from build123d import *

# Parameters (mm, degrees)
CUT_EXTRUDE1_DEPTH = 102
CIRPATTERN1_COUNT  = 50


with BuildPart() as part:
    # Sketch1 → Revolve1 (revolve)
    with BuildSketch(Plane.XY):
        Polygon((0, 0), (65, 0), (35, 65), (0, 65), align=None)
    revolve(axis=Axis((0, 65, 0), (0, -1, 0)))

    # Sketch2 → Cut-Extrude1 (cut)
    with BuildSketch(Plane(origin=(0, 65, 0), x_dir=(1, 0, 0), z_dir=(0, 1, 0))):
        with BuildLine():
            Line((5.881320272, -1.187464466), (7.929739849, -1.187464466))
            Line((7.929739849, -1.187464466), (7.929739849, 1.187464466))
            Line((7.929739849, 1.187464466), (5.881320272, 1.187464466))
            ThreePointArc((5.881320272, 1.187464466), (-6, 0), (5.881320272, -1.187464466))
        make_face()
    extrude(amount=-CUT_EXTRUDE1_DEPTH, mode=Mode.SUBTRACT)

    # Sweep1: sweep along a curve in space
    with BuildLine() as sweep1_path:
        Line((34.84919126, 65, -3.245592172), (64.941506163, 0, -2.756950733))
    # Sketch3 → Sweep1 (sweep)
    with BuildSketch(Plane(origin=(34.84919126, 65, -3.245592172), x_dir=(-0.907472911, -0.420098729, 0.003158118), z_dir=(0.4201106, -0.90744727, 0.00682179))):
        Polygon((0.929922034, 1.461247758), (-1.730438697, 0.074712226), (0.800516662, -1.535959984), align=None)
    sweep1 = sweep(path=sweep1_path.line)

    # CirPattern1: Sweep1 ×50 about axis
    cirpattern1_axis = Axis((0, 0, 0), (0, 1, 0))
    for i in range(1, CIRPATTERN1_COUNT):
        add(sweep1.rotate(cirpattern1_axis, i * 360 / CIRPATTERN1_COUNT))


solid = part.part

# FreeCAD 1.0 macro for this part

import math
import FreeCAD as App
import Part
import Sketcher
from FreeCAD import Vector
Q = App.Units.Quantity

doc = App.newDocument("Part")
body = doc.addObject("PartDesign::Body", "Body")

# Sketch on XY plane
sketch1 = body.newObject("Sketcher::SketchObject", "Sketch")
sketch1.AttachmentSupport = (doc.getObject("XY_Plane"), [""])
sketch1.MapMode = "FlatFace"
sketch1.addGeometry(Part.LineSegment(Vector(0, 0, 0), Vector(65, 0, 0)), False)
sketch1.addGeometry(Part.LineSegment(Vector(65, 0, 0), Vector(35, 65, 0)), False)
sketch1.addGeometry(Part.LineSegment(Vector(35, 65, 0), Vector(0, 65, 0)), False)
sketch1.addGeometry(Part.LineSegment(Vector(0, 65, 0), Vector(0, 0, 0)), False)
sketch1.addConstraint(Sketcher.Constraint("Coincident", 0, 2, 1, 1))
sketch1.addConstraint(Sketcher.Constraint("Coincident", 1, 2, 2, 1))
sketch1.addConstraint(Sketcher.Constraint("Coincident", 2, 2, 3, 1))
sketch1.addConstraint(Sketcher.Constraint("Coincident", 3, 2, 0, 1))
sketch1.addConstraint(Sketcher.Constraint("Horizontal", 0))
sketch1.addConstraint(Sketcher.Constraint("Horizontal", 2))
sketch1.addConstraint(Sketcher.Constraint("Vertical", 3))
sketch1.addConstraint(Sketcher.Constraint("Coincident", 3, 2, -1, 1))
sketch1.addConstraint(Sketcher.Constraint("Equal", 0, 3))
sketch1.addConstraint(Sketcher.Constraint("DistanceX", 0, 1, 0, 2, Q("65 mm")))
sketch1.addConstraint(Sketcher.Constraint("DistanceX", 2, 2, 2, 1, Q("35 mm")))
revolution = body.newObject("PartDesign::Revolution", "Revolution")
revolution.Profile = sketch1
revolution.ReferenceAxis = (sketch1, ["V_Axis"])
revolution.Angle = 360

# Sketch on XZ plane
sketch2 = body.newObject("Sketcher::SketchObject", "Sketch001")
sketch2.AttachmentSupport = (doc.getObject("XZ_Plane"), [""])
sketch2.MapMode = "FlatFace"
sketch2.AttachmentOffset = App.Placement(Vector(0, 0, -65), App.Rotation())
sketch2.addGeometry(Part.LineSegment(Vector(5.9, 1.2, 0), Vector(7.9, 1.2, 0)), False)
sketch2.addGeometry(Part.LineSegment(Vector(7.9, 1.2, 0), Vector(7.9, -1.2, 0)), False)
sketch2.addGeometry(Part.LineSegment(Vector(7.9, -1.2, 0), Vector(5.9, -1.2, 0)), False)
sketch2.addGeometry(Part.ArcOfCircle(Part.Circle(Vector(0, 0, 0), Vector(0, 0, 1), 6), math.radians(11), math.radians(349)), False)
sketch2.addConstraint(Sketcher.Constraint("Coincident", 0, 2, 1, 1))
sketch2.addConstraint(Sketcher.Constraint("Coincident", 1, 2, 2, 1))
sketch2.addConstraint(Sketcher.Constraint("Coincident", 2, 2, 3, 2))
sketch2.addConstraint(Sketcher.Constraint("Coincident", 3, 1, 0, 1))
sketch2.addConstraint(Sketcher.Constraint("Horizontal", 0))
sketch2.addConstraint(Sketcher.Constraint("Vertical", 1))
sketch2.addConstraint(Sketcher.Constraint("Horizontal", 2))
sketch2.addConstraint(Sketcher.Constraint("Coincident", 3, 3, -1, 1))
sketch2.addConstraint(Sketcher.Constraint("Vertical", 2, 2, 3, 1))
sketch2.addConstraint(Sketcher.Constraint("Radius", 3, Q("6 mm")))
sketch2.addConstraint(Sketcher.Constraint("DistanceX", 0, 1, 0, 2, Q("2.04842 mm")))
sketch2.addConstraint(Sketcher.Constraint("DistanceY", 1, 2, 1, 1, Q("2.374929 mm")))
pocket1 = body.newObject("PartDesign::Pocket", "Pocket")
pocket1.Profile = sketch2
pocket1.Length = 102
pocket1.Reversed = True

# Sketch on an angled plane
sketch3 = body.newObject("Sketcher::SketchObject", "Sketch002")
sketch3.Placement = App.Placement(Vector(34.849191, 65, -3.245592), App.Rotation(Vector(-0.907472911, -0.420098729, 0.003158118), Vector(0, -0.007517348, -0.999971745), Vector(0.4201106, -0.90744727, 0.00682179), "ZXY"))
sketch3.addGeometry(Part.LineSegment(Vector(0.9, 1.5, 0), Vector(-1.7, 0.1, 0)), False)
sketch3.addGeometry(Part.LineSegment(Vector(-1.7, 0.1, 0), Vector(0.8, -1.5, 0)), False)
sketch3.addGeometry(Part.LineSegment(Vector(0.8, -1.5, 0), Vector(0.9, 1.5, 0)), False)
sketch3.addConstraint(Sketcher.Constraint("Coincident", 0, 2, 1, 1))
sketch3.addConstraint(Sketcher.Constraint("Coincident", 1, 2, 2, 1))
sketch3.addConstraint(Sketcher.Constraint("Coincident", 2, 2, 0, 1))
sketch3.addConstraint(Sketcher.Constraint("Equal", 0, 1))
sketch3.addConstraint(Sketcher.Constraint("Equal", 1, 2))
sketch3.addConstraint(Sketcher.Constraint("Distance", 0, Q("3 mm")))
sketch3.addConstraint(Sketcher.Constraint("DistanceX", 0, 2, -1, 1, Q("1.730439 mm")))
sketch3.addConstraint(Sketcher.Constraint("DistanceY", 1, 2, -1, 1, Q("1.53596 mm")))
sketch3.addConstraint(Sketcher.Constraint("DistanceX", 0, 2, 2, 2, Q("2.660361 mm")))

# Sketch on an angled plane
sketch4 = body.newObject("Sketcher::SketchObject", "Sketch003")
sketch4.Placement = App.Placement(Vector(53.479257, 24.758687, 0), App.Rotation(Vector(0.420120376, -0.907468385, 0), Vector(0, 0, 1), Vector(-0.907468385, -0.420120376, 0), "ZXY"))
sketch4.addGeometry(Part.LineSegment(Vector(-44, -3, 0), Vector(27, -3, 0)), False)
sketch4.addConstraint(Sketcher.Constraint("DistanceX", 0, 1, -1, 1, Q("44.34459 mm")))
sketch4.addConstraint(Sketcher.Constraint("DistanceX", -1, 1, 0, 2, Q("27.28325 mm")))
sketch4.addConstraint(Sketcher.Constraint("DistanceY", 0, 2, -1, 1, Q("2.756951 mm")))
sketch4.addConstraint(Sketcher.Constraint("DistanceY", 0, 1, 0, 2, Q("0.488641 mm")))
doc.recompute()

additivepipe = body.newObject("PartDesign::AdditivePipe", "AdditivePipe")
additivepipe.Profile = sketch3
additivepipe.Spine = (sketch4, ["Edge1"])
doc.recompute()

polarpattern = body.newObject("PartDesign::PolarPattern", "PolarPattern")
polarpattern.Originals = [additivepipe]
polarpattern.Axis = (doc.getObject("Y_Axis"), [""])
polarpattern.Angle = 360
polarpattern.Occurrences = 50
body.Tip = polarpattern

doc.recompute()
